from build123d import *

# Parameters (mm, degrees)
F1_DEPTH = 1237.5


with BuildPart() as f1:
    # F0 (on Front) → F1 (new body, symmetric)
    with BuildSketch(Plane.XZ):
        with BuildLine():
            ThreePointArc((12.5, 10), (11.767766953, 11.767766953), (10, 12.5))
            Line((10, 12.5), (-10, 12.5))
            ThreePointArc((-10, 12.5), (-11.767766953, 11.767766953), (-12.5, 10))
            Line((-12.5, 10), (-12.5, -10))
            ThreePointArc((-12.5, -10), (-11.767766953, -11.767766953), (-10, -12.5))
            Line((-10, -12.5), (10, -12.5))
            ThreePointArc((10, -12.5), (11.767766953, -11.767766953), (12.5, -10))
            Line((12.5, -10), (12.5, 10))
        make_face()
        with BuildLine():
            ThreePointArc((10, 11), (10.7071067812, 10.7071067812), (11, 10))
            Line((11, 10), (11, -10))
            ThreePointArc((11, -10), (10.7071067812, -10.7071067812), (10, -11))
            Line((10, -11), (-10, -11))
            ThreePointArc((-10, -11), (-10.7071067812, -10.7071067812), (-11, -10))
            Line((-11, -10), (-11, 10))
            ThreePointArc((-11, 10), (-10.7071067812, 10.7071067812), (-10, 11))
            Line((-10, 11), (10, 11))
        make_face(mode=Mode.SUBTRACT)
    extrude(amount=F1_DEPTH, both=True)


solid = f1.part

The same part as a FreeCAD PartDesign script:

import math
import FreeCAD as App
import Part
import Sketcher
Q = App.Units.Quantity

doc = App.newDocument("Part")
params = doc.addObject("Spreadsheet::Sheet", "Params")
for row, (alias, value) in enumerate([
    ("sketch1_radius", "1 mm"),
    ("sketch1_radius2", "2.5 mm"),
    ("sketch1_width", "20 mm"),
    ("pad1_length", "2475 mm"),
], start=1):
    params.set(f"A{row}", alias)
    params.set(f"B{row}", "=" + value)
    params.setAlias(f"B{row}", alias)

body = doc.addObject("PartDesign::Body", "Body")

# Sketch on XZ plane
sketch1 = doc.addObject("Sketcher::SketchObject", "Sketch")
body.addObject(sketch1)
sketch1.AttachmentSupport = (doc.XZ_Plane, [""])
sketch1.MapMode = "FlatFace"
sketch1.addGeometry([
    Part.ArcOfCircle(Part.Circle(App.Vector(10, 10, 0), App.Vector(0, 0, 1), 2.5), math.radians(0), math.radians(90)),  # 0
    Part.LineSegment(App.Vector(10, 12.5, 0), App.Vector(-10, 12.5, 0)),  # 1
    Part.ArcOfCircle(Part.Circle(App.Vector(-10, 10, 0), App.Vector(0, 0, 1), 2.5), math.radians(90), math.radians(180)),  # 2
    Part.LineSegment(App.Vector(-12.5, 10, 0), App.Vector(-12.5, -10, 0)),  # 3
    Part.ArcOfCircle(Part.Circle(App.Vector(-10, -10, 0), App.Vector(0, 0, 1), 2.5), math.radians(180), math.radians(270)),  # 4
    Part.LineSegment(App.Vector(-10, -12.5, 0), App.Vector(10, -12.5, 0)),  # 5
    Part.ArcOfCircle(Part.Circle(App.Vector(10, -10, 0), App.Vector(0, 0, 1), 2.5), math.radians(-90), math.radians(0)),  # 6
    Part.LineSegment(App.Vector(12.5, -10, 0), App.Vector(12.5, 10, 0)),  # 7
    Part.LineSegment(App.Vector(-10, 11, 0), App.Vector(10, 11, 0)),  # 8
    Part.ArcOfCircle(Part.Circle(App.Vector(10, 10, 0), App.Vector(0, 0, 1), 1), math.radians(0), math.radians(90)),  # 9
    Part.LineSegment(App.Vector(11, 10, 0), App.Vector(11, -10, 0)),  # 10
    Part.ArcOfCircle(Part.Circle(App.Vector(10, -10, 0), App.Vector(0, 0, 1), 1), math.radians(-90), math.radians(0)),  # 11
    Part.LineSegment(App.Vector(10, -11, 0), App.Vector(-10, -11, 0)),  # 12
    Part.ArcOfCircle(Part.Circle(App.Vector(-10, -10, 0), App.Vector(0, 0, 1), 1), math.radians(180), math.radians(270)),  # 13
    Part.LineSegment(App.Vector(-11, -10, 0), App.Vector(-11, 10, 0)),  # 14
    Part.ArcOfCircle(Part.Circle(App.Vector(-10, 10, 0), App.Vector(0, 0, 1), 1), math.radians(90), math.radians(180)),  # 15
], False)
sketch1.addConstraint([
    Sketcher.Constraint("Tangent", 0, 2, 1, 1),
    Sketcher.Constraint("Tangent", 1, 2, 2, 1),
    Sketcher.Constraint("Tangent", 2, 2, 3, 1),
    Sketcher.Constraint("Tangent", 3, 2, 4, 1),
    Sketcher.Constraint("Tangent", 4, 2, 5, 1),
    Sketcher.Constraint("Tangent", 5, 2, 6, 1),
    Sketcher.Constraint("Tangent", 6, 2, 7, 1),
    Sketcher.Constraint("Tangent", 7, 2, 0, 1),
    Sketcher.Constraint("Tangent", 8, 2, 9, 2),
    Sketcher.Constraint("Tangent", 9, 1, 10, 1),
    Sketcher.Constraint("Tangent", 10, 2, 11, 2),
    Sketcher.Constraint("Tangent", 11, 1, 12, 1),
    Sketcher.Constraint("Tangent", 12, 2, 13, 2),
    Sketcher.Constraint("Tangent", 13, 1, 14, 1),
    Sketcher.Constraint("Tangent", 14, 2, 15, 2),
    Sketcher.Constraint("Tangent", 15, 1, 8, 1),
    Sketcher.Constraint("Horizontal", 1),
    Sketcher.Constraint("Vertical", 3),
    Sketcher.Constraint("Horizontal", 5),
    Sketcher.Constraint("Vertical", 7),
    Sketcher.Constraint("Horizontal", 8),
    Sketcher.Constraint("Vertical", 10),
    Sketcher.Constraint("Horizontal", 12),
    Sketcher.Constraint("Vertical", 14),
    Sketcher.Constraint("Coincident", 9, 3, 0, 3),
    Sketcher.Constraint("Coincident", 11, 3, 6, 3),
    Sketcher.Constraint("Coincident", 13, 3, 4, 3),
    Sketcher.Constraint("Equal", 0, 2),
    Sketcher.Constraint("Equal", 2, 4),
    Sketcher.Constraint("Equal", 4, 6),
    Sketcher.Constraint("Equal", 13, 15),
    Sketcher.Constraint("Symmetric", 0, 3, 4, 3, -1, 1),
    Sketcher.Constraint("Equal", 12, 3),
    Sketcher.Constraint("Radius", 9, Q("1 mm")),
    Sketcher.Constraint("Radius", 0, Q("2.5 mm")),
    Sketcher.Constraint("DistanceX", 1, 2, 1, 1, Q("20 mm")),
])
sketch1.setExpression("Constraints[33]", "Params.sketch1_radius")
sketch1.setExpression("Constraints[34]", "Params.sketch1_radius2")
sketch1.setExpression("Constraints[35]", "Params.sketch1_width")
pad1 = doc.addObject("PartDesign::Pad", "Pad")
body.addObject(pad1)
pad1.Profile = sketch1
pad1.setExpression("Length", "Params.pad1_length")
pad1.Midplane = True

doc.recompute()
